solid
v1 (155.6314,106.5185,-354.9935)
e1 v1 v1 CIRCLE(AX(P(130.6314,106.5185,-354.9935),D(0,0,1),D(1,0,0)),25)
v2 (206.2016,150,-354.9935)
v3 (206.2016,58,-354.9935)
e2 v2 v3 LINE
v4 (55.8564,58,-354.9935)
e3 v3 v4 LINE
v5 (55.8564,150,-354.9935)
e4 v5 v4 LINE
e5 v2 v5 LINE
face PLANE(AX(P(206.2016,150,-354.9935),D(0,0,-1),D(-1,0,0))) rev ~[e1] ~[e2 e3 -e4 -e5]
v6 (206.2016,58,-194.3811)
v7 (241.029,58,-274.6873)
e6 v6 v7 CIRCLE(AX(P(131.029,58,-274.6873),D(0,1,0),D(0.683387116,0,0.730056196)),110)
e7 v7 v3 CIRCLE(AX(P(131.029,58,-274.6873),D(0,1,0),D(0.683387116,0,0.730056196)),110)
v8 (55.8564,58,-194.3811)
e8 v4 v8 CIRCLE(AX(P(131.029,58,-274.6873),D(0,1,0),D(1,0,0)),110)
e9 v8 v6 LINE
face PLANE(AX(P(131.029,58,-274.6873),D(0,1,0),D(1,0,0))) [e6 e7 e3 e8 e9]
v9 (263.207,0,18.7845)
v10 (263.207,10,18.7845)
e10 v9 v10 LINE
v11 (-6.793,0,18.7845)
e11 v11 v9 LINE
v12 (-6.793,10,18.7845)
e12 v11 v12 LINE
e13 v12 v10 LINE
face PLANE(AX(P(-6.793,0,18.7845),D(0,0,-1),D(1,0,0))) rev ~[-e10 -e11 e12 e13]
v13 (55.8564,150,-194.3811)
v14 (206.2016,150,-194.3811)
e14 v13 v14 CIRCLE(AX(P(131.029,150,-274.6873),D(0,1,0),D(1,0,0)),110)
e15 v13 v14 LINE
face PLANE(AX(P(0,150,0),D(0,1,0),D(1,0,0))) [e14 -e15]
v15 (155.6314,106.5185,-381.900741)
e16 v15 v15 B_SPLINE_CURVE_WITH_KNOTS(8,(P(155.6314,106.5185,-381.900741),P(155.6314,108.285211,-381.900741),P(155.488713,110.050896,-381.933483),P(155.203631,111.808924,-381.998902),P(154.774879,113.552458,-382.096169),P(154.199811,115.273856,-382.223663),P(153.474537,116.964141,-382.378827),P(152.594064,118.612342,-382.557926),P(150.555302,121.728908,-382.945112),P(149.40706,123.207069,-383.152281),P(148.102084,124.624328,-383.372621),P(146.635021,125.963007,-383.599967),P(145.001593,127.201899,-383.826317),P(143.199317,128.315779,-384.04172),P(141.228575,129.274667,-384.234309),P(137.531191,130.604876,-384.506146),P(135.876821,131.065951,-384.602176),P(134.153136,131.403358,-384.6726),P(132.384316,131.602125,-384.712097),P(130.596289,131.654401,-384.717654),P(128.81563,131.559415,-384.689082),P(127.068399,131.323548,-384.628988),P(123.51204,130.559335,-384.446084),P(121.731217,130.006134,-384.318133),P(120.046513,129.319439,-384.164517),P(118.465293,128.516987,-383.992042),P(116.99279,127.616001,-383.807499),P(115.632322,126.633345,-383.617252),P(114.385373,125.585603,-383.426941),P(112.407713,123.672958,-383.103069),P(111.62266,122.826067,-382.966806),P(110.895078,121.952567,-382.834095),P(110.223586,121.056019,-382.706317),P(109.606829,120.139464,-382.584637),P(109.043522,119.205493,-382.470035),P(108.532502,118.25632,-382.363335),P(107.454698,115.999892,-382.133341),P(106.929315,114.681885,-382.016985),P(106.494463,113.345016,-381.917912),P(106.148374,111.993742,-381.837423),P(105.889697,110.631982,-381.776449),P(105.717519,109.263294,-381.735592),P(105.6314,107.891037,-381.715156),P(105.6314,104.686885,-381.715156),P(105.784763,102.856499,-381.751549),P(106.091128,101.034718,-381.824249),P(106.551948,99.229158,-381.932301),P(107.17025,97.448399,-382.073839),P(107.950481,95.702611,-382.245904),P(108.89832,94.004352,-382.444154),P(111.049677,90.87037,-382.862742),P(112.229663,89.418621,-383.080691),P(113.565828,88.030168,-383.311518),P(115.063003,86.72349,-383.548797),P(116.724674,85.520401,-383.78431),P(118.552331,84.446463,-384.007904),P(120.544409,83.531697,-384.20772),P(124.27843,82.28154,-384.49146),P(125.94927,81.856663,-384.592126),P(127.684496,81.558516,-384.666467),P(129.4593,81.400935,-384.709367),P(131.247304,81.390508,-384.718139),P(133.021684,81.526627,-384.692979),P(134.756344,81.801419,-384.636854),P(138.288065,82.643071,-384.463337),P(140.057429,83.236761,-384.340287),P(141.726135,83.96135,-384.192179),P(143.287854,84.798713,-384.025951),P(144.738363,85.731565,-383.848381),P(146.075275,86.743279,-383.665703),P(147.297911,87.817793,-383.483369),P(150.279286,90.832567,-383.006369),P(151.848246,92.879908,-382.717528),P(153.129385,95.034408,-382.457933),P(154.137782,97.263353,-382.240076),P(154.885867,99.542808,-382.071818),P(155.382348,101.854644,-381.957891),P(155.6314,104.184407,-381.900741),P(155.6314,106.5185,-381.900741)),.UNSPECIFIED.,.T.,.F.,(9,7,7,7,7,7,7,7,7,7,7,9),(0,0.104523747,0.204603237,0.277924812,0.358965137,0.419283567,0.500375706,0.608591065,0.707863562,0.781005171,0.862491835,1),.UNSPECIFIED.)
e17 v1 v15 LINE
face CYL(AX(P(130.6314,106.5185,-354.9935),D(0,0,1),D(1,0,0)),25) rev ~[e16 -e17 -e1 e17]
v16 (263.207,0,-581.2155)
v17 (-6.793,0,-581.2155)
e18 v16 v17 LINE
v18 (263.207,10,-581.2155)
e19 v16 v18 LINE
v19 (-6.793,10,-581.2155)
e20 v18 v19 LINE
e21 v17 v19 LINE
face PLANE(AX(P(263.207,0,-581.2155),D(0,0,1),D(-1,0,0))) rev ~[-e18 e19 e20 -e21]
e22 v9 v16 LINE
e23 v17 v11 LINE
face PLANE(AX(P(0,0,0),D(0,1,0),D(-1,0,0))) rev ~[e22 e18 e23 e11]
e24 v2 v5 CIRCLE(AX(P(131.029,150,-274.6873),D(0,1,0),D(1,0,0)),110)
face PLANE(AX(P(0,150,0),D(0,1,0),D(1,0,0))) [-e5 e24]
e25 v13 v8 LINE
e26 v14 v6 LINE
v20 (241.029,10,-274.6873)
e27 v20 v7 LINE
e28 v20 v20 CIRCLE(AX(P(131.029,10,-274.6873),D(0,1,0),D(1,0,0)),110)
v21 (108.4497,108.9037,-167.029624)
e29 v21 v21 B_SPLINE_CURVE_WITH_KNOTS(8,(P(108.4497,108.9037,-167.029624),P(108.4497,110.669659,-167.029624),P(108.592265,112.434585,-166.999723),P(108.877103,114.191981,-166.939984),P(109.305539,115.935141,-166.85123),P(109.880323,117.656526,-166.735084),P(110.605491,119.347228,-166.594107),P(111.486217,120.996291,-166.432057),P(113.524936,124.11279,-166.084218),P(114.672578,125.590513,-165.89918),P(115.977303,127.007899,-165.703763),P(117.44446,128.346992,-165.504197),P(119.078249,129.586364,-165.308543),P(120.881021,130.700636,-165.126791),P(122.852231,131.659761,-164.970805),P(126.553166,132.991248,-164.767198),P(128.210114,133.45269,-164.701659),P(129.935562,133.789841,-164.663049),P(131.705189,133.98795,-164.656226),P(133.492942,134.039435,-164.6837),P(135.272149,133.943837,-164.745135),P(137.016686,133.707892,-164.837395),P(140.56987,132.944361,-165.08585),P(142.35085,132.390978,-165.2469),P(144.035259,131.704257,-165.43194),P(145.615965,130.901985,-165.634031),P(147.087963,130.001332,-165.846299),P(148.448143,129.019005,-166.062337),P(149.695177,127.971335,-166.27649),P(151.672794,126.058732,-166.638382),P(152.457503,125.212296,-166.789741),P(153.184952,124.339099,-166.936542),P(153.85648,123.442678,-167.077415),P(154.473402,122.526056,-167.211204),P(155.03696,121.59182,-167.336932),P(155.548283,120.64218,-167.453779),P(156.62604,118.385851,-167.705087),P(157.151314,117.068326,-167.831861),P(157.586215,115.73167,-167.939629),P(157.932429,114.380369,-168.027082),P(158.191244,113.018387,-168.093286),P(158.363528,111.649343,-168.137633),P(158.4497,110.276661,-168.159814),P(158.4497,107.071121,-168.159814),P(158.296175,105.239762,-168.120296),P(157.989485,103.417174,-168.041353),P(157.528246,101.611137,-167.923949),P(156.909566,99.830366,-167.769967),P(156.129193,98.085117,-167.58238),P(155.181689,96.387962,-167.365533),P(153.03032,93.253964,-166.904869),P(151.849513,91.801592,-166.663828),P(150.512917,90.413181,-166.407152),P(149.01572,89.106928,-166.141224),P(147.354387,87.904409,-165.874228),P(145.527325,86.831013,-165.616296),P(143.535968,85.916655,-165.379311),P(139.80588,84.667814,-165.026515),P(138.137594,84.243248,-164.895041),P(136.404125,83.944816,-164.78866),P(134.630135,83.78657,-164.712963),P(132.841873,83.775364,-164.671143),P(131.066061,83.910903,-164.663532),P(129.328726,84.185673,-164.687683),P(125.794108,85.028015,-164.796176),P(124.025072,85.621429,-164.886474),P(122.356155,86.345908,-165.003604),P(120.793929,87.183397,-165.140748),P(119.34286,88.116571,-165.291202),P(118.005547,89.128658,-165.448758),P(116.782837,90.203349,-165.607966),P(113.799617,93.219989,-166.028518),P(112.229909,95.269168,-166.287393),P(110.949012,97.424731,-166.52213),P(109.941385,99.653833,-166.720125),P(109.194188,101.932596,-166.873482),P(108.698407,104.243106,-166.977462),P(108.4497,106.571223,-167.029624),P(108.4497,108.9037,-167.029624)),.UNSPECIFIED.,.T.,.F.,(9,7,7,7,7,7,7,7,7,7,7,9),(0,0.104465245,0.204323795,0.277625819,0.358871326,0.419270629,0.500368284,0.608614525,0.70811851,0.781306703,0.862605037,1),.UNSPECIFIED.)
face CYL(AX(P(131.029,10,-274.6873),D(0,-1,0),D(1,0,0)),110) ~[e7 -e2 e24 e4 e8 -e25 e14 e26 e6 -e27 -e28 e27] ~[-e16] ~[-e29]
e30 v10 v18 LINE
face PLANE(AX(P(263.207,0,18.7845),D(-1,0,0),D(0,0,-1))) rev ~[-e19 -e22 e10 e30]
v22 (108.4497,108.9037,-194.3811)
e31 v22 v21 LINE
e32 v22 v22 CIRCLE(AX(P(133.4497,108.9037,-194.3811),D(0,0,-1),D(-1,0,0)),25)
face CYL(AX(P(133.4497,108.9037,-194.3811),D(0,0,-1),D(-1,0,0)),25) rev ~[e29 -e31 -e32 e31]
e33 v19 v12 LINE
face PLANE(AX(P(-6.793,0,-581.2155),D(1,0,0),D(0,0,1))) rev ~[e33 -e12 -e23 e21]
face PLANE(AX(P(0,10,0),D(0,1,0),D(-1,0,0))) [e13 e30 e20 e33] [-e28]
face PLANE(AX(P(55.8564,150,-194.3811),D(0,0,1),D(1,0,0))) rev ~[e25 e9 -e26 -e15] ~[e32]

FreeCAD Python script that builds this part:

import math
import FreeCAD as App
import Part
import Sketcher

V = App.Vector

doc = App.newDocument("Part")
body = doc.addObject("PartDesign::Body", "Body")

sketch1 = body.newObject("Sketcher::SketchObject", "Sketch")
sketch1.AttachmentSupport = (doc.getObject("XZ_Plane"), [""])
sketch1.MapMode = "FlatFace"
sketch1.addGeometry(Part.LineSegment(V(-7, -581, 0), V(-7, 19, 0)), False)
sketch1.addGeometry(Part.LineSegment(V(-7, 19, 0), V(263, 19, 0)), False)
sketch1.addGeometry(Part.LineSegment(V(263, 19, 0), V(263, -581, 0)), False)
sketch1.addGeometry(Part.LineSegment(V(263, -581, 0), V(-7, -581, 0)), False)
sketch1.addConstraint(Sketcher.Constraint("Coincident", 0, 2, 1, 1))
sketch1.addConstraint(Sketcher.Constraint("Coincident", 1, 2, 2, 1))
sketch1.addConstraint(Sketcher.Constraint("Coincident", 2, 2, 3, 1))
sketch1.addConstraint(Sketcher.Constraint("Coincident", 3, 2, 0, 1))
sketch1.addConstraint(Sketcher.Constraint("Vertical", 0))
sketch1.addConstraint(Sketcher.Constraint("Horizontal", 1))
sketch1.addConstraint(Sketcher.Constraint("Vertical", 2))
sketch1.addConstraint(Sketcher.Constraint("Horizontal", 3))
sketch1.addConstraint(Sketcher.Constraint("DistanceX", 1, 1, 1, 2, 270.0))
sketch1.addConstraint(Sketcher.Constraint("DistanceY", 0, 1, 0, 2, 600.0))
sketch1.addConstraint(Sketcher.Constraint("DistanceX", 0, 2, -1, 1, 6.793))
sketch1.addConstraint(Sketcher.Constraint("DistanceY", -1, 1, 0, 2, 18.7845))
pad1 = body.newObject("PartDesign::Pad", "Pad")
pad1.Profile = sketch1
pad1.Length = 10
pad1.Reversed = True

sketch2 = body.newObject("Sketcher::SketchObject", "Sketch001")
sketch2.AttachmentSupport = (doc.getObject("XZ_Plane"), [""])
sketch2.MapMode = "FlatFace"
sketch2.AttachmentOffset = App.Placement(V(0, 0, -10), App.Rotation())
sketch2.addGeometry(Part.Circle(V(131, -275, 0), V(0, 0, 1), 110), False)
sketch2.addConstraint(Sketcher.Constraint("Diameter", 0, 220.0))
sketch2.addConstraint(Sketcher.Constraint("DistanceX", -1, 1, 0, 3, 131.029))
sketch2.addConstraint(Sketcher.Constraint("DistanceY", 0, 3, -1, 1, 274.6873))
pad2 = body.newObject("PartDesign::Pad", "Pad001")
pad2.Profile = sketch2
pad2.Length = 140
pad2.Reversed = True

sketch3 = body.newObject("Sketcher::SketchObject", "Sketch002")
sketch3.AttachmentSupport = (doc.getObject("XZ_Plane"), [""])
sketch3.MapMode = "FlatFace"
sketch3.AttachmentOffset = App.Placement(V(0, 0, -150), App.Rotation())
sketch3.addGeometry(Part.ArcOfCircle(Part.Circle(V(131, -275, 0), V(0, 0, 1), 110), math.radians(-47), math.radians(47)), False)
sketch3.addGeometry(Part.LineSegment(V(206, -355, 0), V(56, -355, 0)), False)
sketch3.addGeometry(Part.ArcOfCircle(Part.Circle(V(131, -275, 0), V(0, 0, 1), 110), math.radians(133), math.radians(227)), False)
sketch3.addGeometry(Part.LineSegment(V(56, -194, 0), V(206, -194, 0)), False)
sketch3.addConstraint(Sketcher.Constraint("Coincident", 0, 1, 1, 1))
sketch3.addConstraint(Sketcher.Constraint("Coincident", 1, 2, 2, 2))
sketch3.addConstraint(Sketcher.Constraint("Coincident", 2, 1, 3, 1))
sketch3.addConstraint(Sketcher.Constraint("Coincident", 3, 2, 0, 2))
sketch3.addConstraint(Sketcher.Constraint("Horizontal", 1))
sketch3.addConstraint(Sketcher.Constraint("Horizontal", 3))
sketch3.addConstraint(Sketcher.Constraint("Coincident", 2, 3, 0, 3))
sketch3.addConstraint(Sketcher.Constraint("Equal", 0, 2))
sketch3.addConstraint(Sketcher.Constraint("Vertical", 1, 2, 2, 1))
sketch3.addConstraint(Sketcher.Constraint("Radius", 0, 110.0))
sketch3.addConstraint(Sketcher.Constraint("DistanceX", 1, 2, 1, 1, 150.3452))
sketch3.addConstraint(Sketcher.Constraint("DistanceX", -1, 1, 0, 3, 131.029))
sketch3.addConstraint(Sketcher.Constraint("DistanceY", 2, 1, -1, 1, 194.381))
pocket1 = body.newObject("PartDesign::Pocket", "Pocket")
pocket1.Profile = sketch3
pocket1.Length = 92
pocket1.Reversed = True

sketch4 = body.newObject("Sketcher::SketchObject", "Sketch003")
sketch4.AttachmentSupport = (doc.getObject("XY_Plane"), [""])
sketch4.MapMode = "FlatFace"
sketch4.AttachmentOffset = App.Placement(V(0, 0, -194.3811), App.Rotation())
sketch4.addGeometry(Part.Circle(V(133, 109, 0), V(0, 0, 1), 25), False)
sketch4.addConstraint(Sketcher.Constraint("Diameter", 0, 50.0))
sketch4.addConstraint(Sketcher.Constraint("DistanceX", -1, 1, 0, 3, 133.4497))
sketch4.addConstraint(Sketcher.Constraint("DistanceY", -1, 1, 0, 3, 108.9037))
pocket2 = body.newObject("PartDesign::Pocket", "Pocket001")
pocket2.Profile = sketch4
pocket2.Length = 92
pocket2.Reversed = True

sketch5 = body.newObject("Sketcher::SketchObject", "Sketch004")
sketch5.AttachmentSupport = (doc.getObject("XY_Plane"), [""])
sketch5.MapMode = "FlatFace"
sketch5.AttachmentOffset = App.Placement(V(0, 0, -354.9935), App.Rotation())
sketch5.addGeometry(Part.Circle(V(131, 107, 0), V(0, 0, 1), 25), False)
sketch5.addConstraint(Sketcher.Constraint("Diameter", 0, 50.0))
sketch5.addConstraint(Sketcher.Constraint("DistanceX", -1, 1, 0, 3, 130.6314))
sketch5.addConstraint(Sketcher.Constraint("DistanceY", -1, 1, 0, 3, 106.5185))
pocket3 = body.newObject("PartDesign::Pocket", "Pocket002")
pocket3.Profile = sketch5
pocket3.Length = 92

doc.recompute()
